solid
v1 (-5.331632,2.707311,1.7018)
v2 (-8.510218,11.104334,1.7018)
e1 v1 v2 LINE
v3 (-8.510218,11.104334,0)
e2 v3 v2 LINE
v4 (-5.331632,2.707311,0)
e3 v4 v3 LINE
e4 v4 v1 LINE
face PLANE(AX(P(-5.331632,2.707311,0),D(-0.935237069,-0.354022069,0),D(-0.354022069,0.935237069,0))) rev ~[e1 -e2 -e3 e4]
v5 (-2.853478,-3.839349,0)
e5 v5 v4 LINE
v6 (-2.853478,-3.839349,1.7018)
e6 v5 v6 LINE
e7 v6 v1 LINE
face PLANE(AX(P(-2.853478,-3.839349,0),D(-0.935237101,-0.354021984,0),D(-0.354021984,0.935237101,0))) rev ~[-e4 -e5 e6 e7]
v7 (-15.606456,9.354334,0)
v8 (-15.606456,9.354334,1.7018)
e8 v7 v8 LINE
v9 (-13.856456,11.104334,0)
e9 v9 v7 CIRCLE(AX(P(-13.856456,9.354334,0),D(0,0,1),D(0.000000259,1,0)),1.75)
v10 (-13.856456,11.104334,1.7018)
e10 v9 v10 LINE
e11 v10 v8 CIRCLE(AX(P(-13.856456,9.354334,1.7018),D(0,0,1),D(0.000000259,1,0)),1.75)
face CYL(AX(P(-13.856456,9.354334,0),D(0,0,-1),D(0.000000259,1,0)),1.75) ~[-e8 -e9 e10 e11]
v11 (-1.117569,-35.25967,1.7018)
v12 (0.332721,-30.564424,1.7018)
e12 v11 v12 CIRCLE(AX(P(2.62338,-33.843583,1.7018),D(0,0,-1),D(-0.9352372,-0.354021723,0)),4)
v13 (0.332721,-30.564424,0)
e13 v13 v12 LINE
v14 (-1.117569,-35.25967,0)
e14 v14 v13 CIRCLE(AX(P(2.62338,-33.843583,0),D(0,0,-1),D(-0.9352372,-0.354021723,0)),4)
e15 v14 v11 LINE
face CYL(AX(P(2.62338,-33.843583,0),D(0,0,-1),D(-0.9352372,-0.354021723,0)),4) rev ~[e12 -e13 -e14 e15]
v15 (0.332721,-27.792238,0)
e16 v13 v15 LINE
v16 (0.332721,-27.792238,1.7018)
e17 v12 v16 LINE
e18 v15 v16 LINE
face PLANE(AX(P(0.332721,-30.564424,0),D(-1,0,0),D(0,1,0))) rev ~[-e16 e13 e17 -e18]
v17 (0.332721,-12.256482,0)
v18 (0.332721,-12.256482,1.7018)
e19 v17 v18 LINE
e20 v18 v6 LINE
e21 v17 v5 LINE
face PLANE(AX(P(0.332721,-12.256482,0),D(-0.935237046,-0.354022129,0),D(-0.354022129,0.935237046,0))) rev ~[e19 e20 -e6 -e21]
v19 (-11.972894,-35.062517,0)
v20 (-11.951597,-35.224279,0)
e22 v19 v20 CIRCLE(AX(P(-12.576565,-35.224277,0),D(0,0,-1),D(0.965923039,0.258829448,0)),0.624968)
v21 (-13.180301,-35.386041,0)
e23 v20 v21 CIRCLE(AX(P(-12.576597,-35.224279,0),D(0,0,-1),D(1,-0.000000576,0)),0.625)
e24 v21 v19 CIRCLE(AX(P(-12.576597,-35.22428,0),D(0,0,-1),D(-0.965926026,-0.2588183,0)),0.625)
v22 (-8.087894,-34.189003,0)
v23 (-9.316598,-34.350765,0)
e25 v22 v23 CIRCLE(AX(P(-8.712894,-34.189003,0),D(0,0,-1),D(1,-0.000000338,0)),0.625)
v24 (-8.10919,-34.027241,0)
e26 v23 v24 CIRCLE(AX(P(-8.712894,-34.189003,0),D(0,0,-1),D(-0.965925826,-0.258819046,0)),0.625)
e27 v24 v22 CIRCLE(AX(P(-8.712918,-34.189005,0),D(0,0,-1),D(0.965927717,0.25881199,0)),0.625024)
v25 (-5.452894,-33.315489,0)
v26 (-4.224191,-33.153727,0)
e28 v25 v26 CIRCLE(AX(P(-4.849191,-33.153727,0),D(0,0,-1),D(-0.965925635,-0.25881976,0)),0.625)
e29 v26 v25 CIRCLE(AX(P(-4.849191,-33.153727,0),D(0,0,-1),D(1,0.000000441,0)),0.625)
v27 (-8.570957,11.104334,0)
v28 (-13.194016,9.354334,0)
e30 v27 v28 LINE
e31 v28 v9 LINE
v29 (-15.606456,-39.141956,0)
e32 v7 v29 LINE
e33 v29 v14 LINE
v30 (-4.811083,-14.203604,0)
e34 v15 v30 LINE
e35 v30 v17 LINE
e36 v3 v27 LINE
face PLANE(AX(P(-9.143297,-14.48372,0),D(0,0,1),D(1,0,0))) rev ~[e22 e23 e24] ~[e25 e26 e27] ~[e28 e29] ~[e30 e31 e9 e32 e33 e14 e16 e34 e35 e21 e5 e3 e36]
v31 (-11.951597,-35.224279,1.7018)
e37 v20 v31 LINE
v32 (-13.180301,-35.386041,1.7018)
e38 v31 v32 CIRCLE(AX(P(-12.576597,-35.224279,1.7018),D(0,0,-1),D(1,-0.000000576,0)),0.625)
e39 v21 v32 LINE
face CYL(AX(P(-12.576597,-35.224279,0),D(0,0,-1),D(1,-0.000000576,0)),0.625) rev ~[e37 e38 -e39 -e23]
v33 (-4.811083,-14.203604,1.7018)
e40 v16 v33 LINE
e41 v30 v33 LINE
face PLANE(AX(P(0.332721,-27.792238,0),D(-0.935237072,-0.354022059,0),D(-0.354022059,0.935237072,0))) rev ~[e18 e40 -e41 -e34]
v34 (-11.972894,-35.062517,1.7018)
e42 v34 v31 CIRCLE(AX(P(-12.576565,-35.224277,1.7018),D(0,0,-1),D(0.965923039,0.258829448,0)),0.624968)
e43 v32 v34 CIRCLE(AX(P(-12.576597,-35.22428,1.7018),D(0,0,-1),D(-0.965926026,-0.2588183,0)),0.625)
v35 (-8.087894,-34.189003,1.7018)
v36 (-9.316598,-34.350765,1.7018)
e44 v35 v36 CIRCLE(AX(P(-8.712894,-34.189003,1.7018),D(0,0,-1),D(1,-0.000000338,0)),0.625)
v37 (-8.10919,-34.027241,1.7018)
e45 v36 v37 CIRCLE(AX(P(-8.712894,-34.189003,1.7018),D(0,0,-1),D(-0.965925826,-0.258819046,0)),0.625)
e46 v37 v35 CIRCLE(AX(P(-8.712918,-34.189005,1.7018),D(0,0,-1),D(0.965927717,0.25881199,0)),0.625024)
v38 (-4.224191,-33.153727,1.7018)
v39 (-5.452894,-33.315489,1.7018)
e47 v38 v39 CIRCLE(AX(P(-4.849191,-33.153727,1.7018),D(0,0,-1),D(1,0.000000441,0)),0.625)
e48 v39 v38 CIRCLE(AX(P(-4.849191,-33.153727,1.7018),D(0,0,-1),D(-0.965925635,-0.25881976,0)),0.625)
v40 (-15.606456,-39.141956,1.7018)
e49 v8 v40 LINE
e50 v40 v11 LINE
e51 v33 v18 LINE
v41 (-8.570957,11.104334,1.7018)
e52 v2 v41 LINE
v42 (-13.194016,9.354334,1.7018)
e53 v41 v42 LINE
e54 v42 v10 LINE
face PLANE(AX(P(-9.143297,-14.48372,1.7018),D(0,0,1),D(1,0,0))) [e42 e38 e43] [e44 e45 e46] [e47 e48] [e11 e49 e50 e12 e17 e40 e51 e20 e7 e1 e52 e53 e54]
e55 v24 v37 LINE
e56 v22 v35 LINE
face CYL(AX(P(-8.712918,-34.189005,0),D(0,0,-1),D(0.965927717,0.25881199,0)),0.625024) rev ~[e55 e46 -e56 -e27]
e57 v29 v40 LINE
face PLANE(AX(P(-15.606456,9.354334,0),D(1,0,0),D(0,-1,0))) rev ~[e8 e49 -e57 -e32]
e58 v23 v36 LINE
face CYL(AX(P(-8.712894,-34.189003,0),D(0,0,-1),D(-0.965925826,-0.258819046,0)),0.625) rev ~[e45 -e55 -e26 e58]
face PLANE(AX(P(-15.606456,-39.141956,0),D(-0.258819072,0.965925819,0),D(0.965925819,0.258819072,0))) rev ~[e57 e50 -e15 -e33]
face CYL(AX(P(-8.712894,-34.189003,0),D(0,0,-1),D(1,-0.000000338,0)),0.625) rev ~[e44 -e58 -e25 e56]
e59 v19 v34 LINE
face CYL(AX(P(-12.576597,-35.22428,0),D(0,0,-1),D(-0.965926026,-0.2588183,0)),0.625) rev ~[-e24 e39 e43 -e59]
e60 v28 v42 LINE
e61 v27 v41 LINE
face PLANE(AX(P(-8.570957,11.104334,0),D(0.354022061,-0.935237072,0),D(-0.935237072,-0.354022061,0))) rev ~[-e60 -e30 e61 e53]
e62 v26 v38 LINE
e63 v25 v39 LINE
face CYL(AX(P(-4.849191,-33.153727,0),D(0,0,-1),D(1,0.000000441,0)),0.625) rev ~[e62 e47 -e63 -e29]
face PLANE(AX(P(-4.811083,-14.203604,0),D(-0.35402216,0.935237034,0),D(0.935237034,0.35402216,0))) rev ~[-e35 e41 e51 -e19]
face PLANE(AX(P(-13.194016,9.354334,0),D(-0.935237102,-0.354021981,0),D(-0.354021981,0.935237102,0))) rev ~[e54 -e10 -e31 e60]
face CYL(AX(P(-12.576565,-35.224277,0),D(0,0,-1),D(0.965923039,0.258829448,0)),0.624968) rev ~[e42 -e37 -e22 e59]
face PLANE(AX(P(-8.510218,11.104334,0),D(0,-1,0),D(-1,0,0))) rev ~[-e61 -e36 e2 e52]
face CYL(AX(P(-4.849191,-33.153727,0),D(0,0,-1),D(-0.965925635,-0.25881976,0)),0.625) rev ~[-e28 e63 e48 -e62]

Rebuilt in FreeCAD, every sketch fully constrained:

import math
import FreeCAD as App
import Part
import Sketcher
Q = App.Units.Quantity

doc = App.newDocument("Part")
params = doc.addObject("Spreadsheet::Sheet", "Params")
for row, (alias, value) in enumerate([
    ("sketch1_radius", "4 mm"),
    ("sketch1_radius2", "1.75 mm"),
    ("sketch1_length", "15 mm"),
    ("sketch1_length2", "9 mm"),
    ("sketch1_length3", "7 mm"),
    ("pad1_length", "1.7018 mm"),
], start=1):
    params.set(f"A{row}", alias)
    params.set(f"B{row}", "=" + value)
    params.setAlias(f"B{row}", alias)

body = doc.addObject("PartDesign::Body", "Body")

sketch1 = body.newObject("Sketcher::SketchObject", "Sketch")
sketch1.AttachmentSupport = (doc.getObject("XY_Plane"), [""])
sketch1.MapMode = "FlatFace"
sketch1.addGeometry(Part.LineSegment(App.Vector(-13.194016, 9.354334, 0), App.Vector(-13.856456, 11.104334, 0)), False)
sketch1.addGeometry(Part.ArcOfCircle(Part.Circle(App.Vector(-13.856456, 9.354334, 0), App.Vector(0, 0, 1), 1.75), math.radians(89.999985), math.radians(180.000015)), False)
sketch1.addGeometry(Part.LineSegment(App.Vector(-15.606456, 9.354334, 0), App.Vector(-15.606456, -39.141956, 0)), False)
sketch1.addGeometry(Part.LineSegment(App.Vector(-15.606456, -39.141956, 0), App.Vector(-1.117569, -35.25967, 0)), False)
sketch1.addGeometry(Part.ArcOfCircle(Part.Circle(App.Vector(2.62338, -33.843583, 0), App.Vector(0, 0, 1), 4), math.radians(124.936255), math.radians(200.7335)), False)
sketch1.addGeometry(Part.LineSegment(App.Vector(0.332721, -30.564424, 0), App.Vector(0.332721, -27.792238, 0)), False)
sketch1.addGeometry(Part.LineSegment(App.Vector(0.332721, -27.792238, 0), App.Vector(-4.811083, -14.203604, 0)), False)
sketch1.addGeometry(Part.LineSegment(App.Vector(-4.811083, -14.203604, 0), App.Vector(0.332721, -12.256482, 0)), False)
sketch1.addGeometry(Part.LineSegment(App.Vector(0.332721, -12.256482, 0), App.Vector(-2.853478, -3.839349, 0)), False)
sketch1.addGeometry(Part.LineSegment(App.Vector(-2.853478, -3.839349, 0), App.Vector(-5.331632, 2.707311, 0)), False)
sketch1.addGeometry(Part.LineSegment(App.Vector(-5.331632, 2.707311, 0), App.Vector(-8.510218, 11.104334, 0)), False)
sketch1.addGeometry(Part.LineSegment(App.Vector(-8.510218, 11.104334, 0), App.Vector(-8.570957, 11.104334, 0)), False)
sketch1.addGeometry(Part.LineSegment(App.Vector(-8.570957, 11.104334, 0), App.Vector(-13.194016, 9.354334, 0)), False)
sketch1.addGeometry(Part.ArcOfCircle(Part.Circle(App.Vector(-12.576565, -35.224277, 0), App.Vector(0, 0, 1), 0.624968), math.radians(-0.000179), math.radians(15.000617)), False)
sketch1.addGeometry(Part.ArcOfCircle(Part.Circle(App.Vector(-12.576597, -35.224279, 0), App.Vector(0, 0, 1), 0.625), math.radians(-164.999962), math.radians(-0.000033)), False)
sketch1.addGeometry(Part.ArcOfCircle(Part.Circle(App.Vector(-12.576597, -35.22428, 0), App.Vector(0, 0, 1), 0.625), math.radians(15.000068), math.radians(194.999956)), False)
sketch1.addGeometry(Part.ArcOfCircle(Part.Circle(App.Vector(-8.712918, -34.189005, 0), App.Vector(0, 0, 1), 0.625024), math.radians(0.00016), math.radians(14.999581)), False)
sketch1.addGeometry(Part.ArcOfCircle(Part.Circle(App.Vector(-8.712894, -34.189003, 0), App.Vector(0, 0, 1), 0.625), math.radians(-164.999976), math.radians(-0.000019)), False)
sketch1.addGeometry(Part.ArcOfCircle(Part.Circle(App.Vector(-8.712894, -34.189003, 0), App.Vector(0, 0, 1), 0.625), math.radians(15), math.radians(195)), False)
sketch1.addGeometry(Part.ArcOfCircle(Part.Circle(App.Vector(-4.849191, -33.153727, 0), App.Vector(0, 0, 1), 0.625), math.radians(-0.000026), math.radians(195.000042)), False)
sketch1.addGeometry(Part.ArcOfCircle(Part.Circle(App.Vector(-4.849191, -33.153727, 0), App.Vector(0, 0, 1), 0.625), math.radians(-165.000009), math.radians(0.000025)), False)
sketch1.addConstraint(Sketcher.Constraint("Coincident", 0, 2, 1, 1))
sketch1.addConstraint(Sketcher.Constraint("Coincident", 1, 2, 2, 1))
sketch1.addConstraint(Sketcher.Constraint("Coincident", 2, 2, 3, 1))
sketch1.addConstraint(Sketcher.Constraint("Coincident", 3, 2, 4, 2))
sketch1.addConstraint(Sketcher.Constraint("Coincident", 4, 1, 5, 1))
sketch1.addConstraint(Sketcher.Constraint("Coincident", 5, 2, 6, 1))
sketch1.addConstraint(Sketcher.Constraint("Coincident", 6, 2, 7, 1))
sketch1.addConstraint(Sketcher.Constraint("Coincident", 7, 2, 8, 1))
sketch1.addConstraint(Sketcher.Constraint("Coincident", 8, 2, 9, 1))
sketch1.addConstraint(Sketcher.Constraint("Coincident", 9, 2, 10, 1))
sketch1.addConstraint(Sketcher.Constraint("Coincident", 10, 2, 11, 1))
sketch1.addConstraint(Sketcher.Constraint("Coincident", 11, 2, 12, 1))
sketch1.addConstraint(Sketcher.Constraint("Coincident", 12, 2, 0, 1))
sketch1.addConstraint(Sketcher.Constraint("Coincident", 13, 1, 14, 2))
sketch1.addConstraint(Sketcher.Constraint("Coincident", 14, 1, 15, 2))
sketch1.addConstraint(Sketcher.Constraint("Coincident", 15, 1, 13, 2))
sketch1.addConstraint(Sketcher.Constraint("Coincident", 16, 1, 17, 2))
sketch1.addConstraint(Sketcher.Constraint("Coincident", 17, 1, 18, 2))
sketch1.addConstraint(Sketcher.Constraint("Coincident", 18, 1, 16, 2))
sketch1.addConstraint(Sketcher.Constraint("Coincident", 19, 1, 20, 2))
sketch1.addConstraint(Sketcher.Constraint("Coincident", 20, 1, 19, 2))
sketch1.addConstraint(Sketcher.Constraint("Vertical", 2))
sketch1.addConstraint(Sketcher.Constraint("Vertical", 5))
sketch1.addConstraint(Sketcher.Constraint("Horizontal", 11))
sketch1.addConstraint(Sketcher.Constraint("Coincident", 15, 3, 14, 3))
sketch1.addConstraint(Sketcher.Constraint("Coincident", 18, 3, 17, 3))
sketch1.addConstraint(Sketcher.Constraint("Radius", 4, Q("4 mm")))
sketch1.addConstraint(Sketcher.Constraint("Radius", 1, Q("1.75 mm")))
sketch1.addConstraint(Sketcher.Constraint("Distance", 3, Q("15 mm")))
sketch1.addConstraint(Sketcher.Constraint("Distance", 8, Q("9 mm")))
sketch1.addConstraint(Sketcher.Constraint("Distance", 9, Q("7 mm")))
sketch1.addConstraint(Sketcher.Constraint("Radius", 14, Q("0.625 mm")))
sketch1.addConstraint(Sketcher.Constraint("Radius", 17, Q("0.625 mm")))
sketch1.addConstraint(Sketcher.Constraint("Radius", 19, Q("0.625 mm")))
sketch1.addConstraint(Sketcher.Constraint("Radius", 20, Q("0.625 mm")))
sketch1.addConstraint(Sketcher.Constraint("Distance", 7, Q("5.5 mm")))
sketch1.addConstraint(Sketcher.Constraint("DistanceX", 1, 2, 0, 2, Q("1.75 mm")))
sketch1.addConstraint(Sketcher.Constraint("DistanceY", 1, 2, 0, 2, Q("1.75 mm")))
sketch1.addConstraint(Sketcher.Constraint("DistanceY", 1, 3, 10, 2, Q("1.75 mm")))
sketch1.addConstraint(Sketcher.Constraint("DistanceY", 12, 2, 0, 2, Q("1.75 mm")))
sketch1.addConstraint(Sketcher.Constraint("Radius", 13, Q("0.624968 mm")))
sketch1.addConstraint(Sketcher.Constraint("Radius", 16, Q("0.625024 mm")))
sketch1.addConstraint(Sketcher.Constraint("DistanceX", 18, 1, 19, 1, Q("3.884999 mm")))
sketch1.addConstraint(Sketcher.Constraint("DistanceX", 16, 1, 20, 1, Q("2.635 mm")))
sketch1.addConstraint(Sketcher.Constraint("DistanceX", 11, 2, 11, 1, Q("0.060739 mm")))
sketch1.addConstraint(Sketcher.Constraint("DistanceY", 2, 2, 2, 1, Q("48.49629 mm")))
sketch1.addConstraint(Sketcher.Constraint("DistanceX", 14, 1, -1, 1, Q("13.180301 mm")))
sketch1.addConstraint(Sketcher.Constraint("DistanceX", 17, 1, -1, 1, Q("9.316598 mm")))
sketch1.addConstraint(Sketcher.Constraint("DistanceX", 16, 3, 4, 3, Q("11.336298 mm")))
sketch1.addConstraint(Sketcher.Constraint("DistanceY", 17, 3, 6, 2, Q("19.985399 mm")))
sketch1.addConstraint(Sketcher.Constraint("DistanceX", 8, 2, 7, 2, Q("3.186199 mm")))
sketch1.addConstraint(Sketcher.Constraint("DistanceX", 0, 2, 11, 2, Q("5.285499 mm")))
sketch1.addConstraint(Sketcher.Constraint("DistanceY", 5, 1, 5, 2, Q("2.772186 mm")))
sketch1.addConstraint(Sketcher.Constraint("DistanceX", -1, 1, 4, 3, Q("2.62338 mm")))
sketch1.addConstraint(Sketcher.Constraint("DistanceY", 14, 3, -1, 1, Q("35.224279 mm")))
sketch1.addConstraint(Sketcher.Constraint("DistanceX", 19, 3, -1, 1, Q("4.849191 mm")))
sketch1.addConstraint(Sketcher.Constraint("DistanceX", 3, 2, -1, 1, Q("1.117569 mm")))
sketch1.addConstraint(Sketcher.Constraint("DistanceY", 3, 2, -1, 1, Q("35.25967 mm")))
sketch1.addConstraint(Sketcher.Constraint("DistanceX", -1, 1, 4, 1, Q("0.332721 mm")))
sketch1.addConstraint(Sketcher.Constraint("DistanceX", -1, 1, 7, 2, Q("0.332721 mm")))
sketch1.addConstraint(Sketcher.Constraint("DistanceY", 8, 2, -1, 1, Q("3.839349 mm")))
sketch1.addConstraint(Sketcher.Constraint("DistanceY", -1, 1, 9, 2, Q("2.707311 mm")))
sketch1.addConstraint(Sketcher.Constraint("DistanceY", 13, 1, -1, 1, Q("35.224279 mm")))
sketch1.addConstraint(Sketcher.Constraint("DistanceY", 14, 1, -1, 1, Q("35.386041 mm")))
sketch1.addConstraint(Sketcher.Constraint("DistanceY", 18, 1, -1, 1, Q("34.027241 mm")))
sketch1.addConstraint(Sketcher.Constraint("DistanceY", 20, 1, -1, 1, Q("33.315489 mm")))
sketch1.addConstraint(Sketcher.Constraint("DistanceX", 1, 3, 13, 3, Q("1.279892 mm")))
sketch1.addConstraint(Sketcher.Constraint("DistanceX", 1, 3, 12, 2, Q("0.66244 mm")))
sketch1.addConstraint(Sketcher.Constraint("DistanceY", 13, 1, 15, 1, Q("0.161762 mm")))
sketch1.addConstraint(Sketcher.Constraint("DistanceY", 16, 1, 18, 1, Q("0.161762 mm")))
sketch1.addConstraint(Sketcher.Constraint("DistanceY", 20, 1, 19, 1, Q("0.161762 mm")))
sketch1.setExpression("Constraints[26]", "Params.sketch1_radius")
sketch1.setExpression("Constraints[27]", "Params.sketch1_radius2")
sketch1.setExpression("Constraints[28]", "Params.sketch1_length")
sketch1.setExpression("Constraints[29]", "Params.sketch1_length2")
sketch1.setExpression("Constraints[30]", "Params.sketch1_length3")
pad1 = body.newObject("PartDesign::Pad", "Pad")
pad1.Profile = sketch1
pad1.setExpression("Length", "Params.pad1_length")

doc.recompute()
